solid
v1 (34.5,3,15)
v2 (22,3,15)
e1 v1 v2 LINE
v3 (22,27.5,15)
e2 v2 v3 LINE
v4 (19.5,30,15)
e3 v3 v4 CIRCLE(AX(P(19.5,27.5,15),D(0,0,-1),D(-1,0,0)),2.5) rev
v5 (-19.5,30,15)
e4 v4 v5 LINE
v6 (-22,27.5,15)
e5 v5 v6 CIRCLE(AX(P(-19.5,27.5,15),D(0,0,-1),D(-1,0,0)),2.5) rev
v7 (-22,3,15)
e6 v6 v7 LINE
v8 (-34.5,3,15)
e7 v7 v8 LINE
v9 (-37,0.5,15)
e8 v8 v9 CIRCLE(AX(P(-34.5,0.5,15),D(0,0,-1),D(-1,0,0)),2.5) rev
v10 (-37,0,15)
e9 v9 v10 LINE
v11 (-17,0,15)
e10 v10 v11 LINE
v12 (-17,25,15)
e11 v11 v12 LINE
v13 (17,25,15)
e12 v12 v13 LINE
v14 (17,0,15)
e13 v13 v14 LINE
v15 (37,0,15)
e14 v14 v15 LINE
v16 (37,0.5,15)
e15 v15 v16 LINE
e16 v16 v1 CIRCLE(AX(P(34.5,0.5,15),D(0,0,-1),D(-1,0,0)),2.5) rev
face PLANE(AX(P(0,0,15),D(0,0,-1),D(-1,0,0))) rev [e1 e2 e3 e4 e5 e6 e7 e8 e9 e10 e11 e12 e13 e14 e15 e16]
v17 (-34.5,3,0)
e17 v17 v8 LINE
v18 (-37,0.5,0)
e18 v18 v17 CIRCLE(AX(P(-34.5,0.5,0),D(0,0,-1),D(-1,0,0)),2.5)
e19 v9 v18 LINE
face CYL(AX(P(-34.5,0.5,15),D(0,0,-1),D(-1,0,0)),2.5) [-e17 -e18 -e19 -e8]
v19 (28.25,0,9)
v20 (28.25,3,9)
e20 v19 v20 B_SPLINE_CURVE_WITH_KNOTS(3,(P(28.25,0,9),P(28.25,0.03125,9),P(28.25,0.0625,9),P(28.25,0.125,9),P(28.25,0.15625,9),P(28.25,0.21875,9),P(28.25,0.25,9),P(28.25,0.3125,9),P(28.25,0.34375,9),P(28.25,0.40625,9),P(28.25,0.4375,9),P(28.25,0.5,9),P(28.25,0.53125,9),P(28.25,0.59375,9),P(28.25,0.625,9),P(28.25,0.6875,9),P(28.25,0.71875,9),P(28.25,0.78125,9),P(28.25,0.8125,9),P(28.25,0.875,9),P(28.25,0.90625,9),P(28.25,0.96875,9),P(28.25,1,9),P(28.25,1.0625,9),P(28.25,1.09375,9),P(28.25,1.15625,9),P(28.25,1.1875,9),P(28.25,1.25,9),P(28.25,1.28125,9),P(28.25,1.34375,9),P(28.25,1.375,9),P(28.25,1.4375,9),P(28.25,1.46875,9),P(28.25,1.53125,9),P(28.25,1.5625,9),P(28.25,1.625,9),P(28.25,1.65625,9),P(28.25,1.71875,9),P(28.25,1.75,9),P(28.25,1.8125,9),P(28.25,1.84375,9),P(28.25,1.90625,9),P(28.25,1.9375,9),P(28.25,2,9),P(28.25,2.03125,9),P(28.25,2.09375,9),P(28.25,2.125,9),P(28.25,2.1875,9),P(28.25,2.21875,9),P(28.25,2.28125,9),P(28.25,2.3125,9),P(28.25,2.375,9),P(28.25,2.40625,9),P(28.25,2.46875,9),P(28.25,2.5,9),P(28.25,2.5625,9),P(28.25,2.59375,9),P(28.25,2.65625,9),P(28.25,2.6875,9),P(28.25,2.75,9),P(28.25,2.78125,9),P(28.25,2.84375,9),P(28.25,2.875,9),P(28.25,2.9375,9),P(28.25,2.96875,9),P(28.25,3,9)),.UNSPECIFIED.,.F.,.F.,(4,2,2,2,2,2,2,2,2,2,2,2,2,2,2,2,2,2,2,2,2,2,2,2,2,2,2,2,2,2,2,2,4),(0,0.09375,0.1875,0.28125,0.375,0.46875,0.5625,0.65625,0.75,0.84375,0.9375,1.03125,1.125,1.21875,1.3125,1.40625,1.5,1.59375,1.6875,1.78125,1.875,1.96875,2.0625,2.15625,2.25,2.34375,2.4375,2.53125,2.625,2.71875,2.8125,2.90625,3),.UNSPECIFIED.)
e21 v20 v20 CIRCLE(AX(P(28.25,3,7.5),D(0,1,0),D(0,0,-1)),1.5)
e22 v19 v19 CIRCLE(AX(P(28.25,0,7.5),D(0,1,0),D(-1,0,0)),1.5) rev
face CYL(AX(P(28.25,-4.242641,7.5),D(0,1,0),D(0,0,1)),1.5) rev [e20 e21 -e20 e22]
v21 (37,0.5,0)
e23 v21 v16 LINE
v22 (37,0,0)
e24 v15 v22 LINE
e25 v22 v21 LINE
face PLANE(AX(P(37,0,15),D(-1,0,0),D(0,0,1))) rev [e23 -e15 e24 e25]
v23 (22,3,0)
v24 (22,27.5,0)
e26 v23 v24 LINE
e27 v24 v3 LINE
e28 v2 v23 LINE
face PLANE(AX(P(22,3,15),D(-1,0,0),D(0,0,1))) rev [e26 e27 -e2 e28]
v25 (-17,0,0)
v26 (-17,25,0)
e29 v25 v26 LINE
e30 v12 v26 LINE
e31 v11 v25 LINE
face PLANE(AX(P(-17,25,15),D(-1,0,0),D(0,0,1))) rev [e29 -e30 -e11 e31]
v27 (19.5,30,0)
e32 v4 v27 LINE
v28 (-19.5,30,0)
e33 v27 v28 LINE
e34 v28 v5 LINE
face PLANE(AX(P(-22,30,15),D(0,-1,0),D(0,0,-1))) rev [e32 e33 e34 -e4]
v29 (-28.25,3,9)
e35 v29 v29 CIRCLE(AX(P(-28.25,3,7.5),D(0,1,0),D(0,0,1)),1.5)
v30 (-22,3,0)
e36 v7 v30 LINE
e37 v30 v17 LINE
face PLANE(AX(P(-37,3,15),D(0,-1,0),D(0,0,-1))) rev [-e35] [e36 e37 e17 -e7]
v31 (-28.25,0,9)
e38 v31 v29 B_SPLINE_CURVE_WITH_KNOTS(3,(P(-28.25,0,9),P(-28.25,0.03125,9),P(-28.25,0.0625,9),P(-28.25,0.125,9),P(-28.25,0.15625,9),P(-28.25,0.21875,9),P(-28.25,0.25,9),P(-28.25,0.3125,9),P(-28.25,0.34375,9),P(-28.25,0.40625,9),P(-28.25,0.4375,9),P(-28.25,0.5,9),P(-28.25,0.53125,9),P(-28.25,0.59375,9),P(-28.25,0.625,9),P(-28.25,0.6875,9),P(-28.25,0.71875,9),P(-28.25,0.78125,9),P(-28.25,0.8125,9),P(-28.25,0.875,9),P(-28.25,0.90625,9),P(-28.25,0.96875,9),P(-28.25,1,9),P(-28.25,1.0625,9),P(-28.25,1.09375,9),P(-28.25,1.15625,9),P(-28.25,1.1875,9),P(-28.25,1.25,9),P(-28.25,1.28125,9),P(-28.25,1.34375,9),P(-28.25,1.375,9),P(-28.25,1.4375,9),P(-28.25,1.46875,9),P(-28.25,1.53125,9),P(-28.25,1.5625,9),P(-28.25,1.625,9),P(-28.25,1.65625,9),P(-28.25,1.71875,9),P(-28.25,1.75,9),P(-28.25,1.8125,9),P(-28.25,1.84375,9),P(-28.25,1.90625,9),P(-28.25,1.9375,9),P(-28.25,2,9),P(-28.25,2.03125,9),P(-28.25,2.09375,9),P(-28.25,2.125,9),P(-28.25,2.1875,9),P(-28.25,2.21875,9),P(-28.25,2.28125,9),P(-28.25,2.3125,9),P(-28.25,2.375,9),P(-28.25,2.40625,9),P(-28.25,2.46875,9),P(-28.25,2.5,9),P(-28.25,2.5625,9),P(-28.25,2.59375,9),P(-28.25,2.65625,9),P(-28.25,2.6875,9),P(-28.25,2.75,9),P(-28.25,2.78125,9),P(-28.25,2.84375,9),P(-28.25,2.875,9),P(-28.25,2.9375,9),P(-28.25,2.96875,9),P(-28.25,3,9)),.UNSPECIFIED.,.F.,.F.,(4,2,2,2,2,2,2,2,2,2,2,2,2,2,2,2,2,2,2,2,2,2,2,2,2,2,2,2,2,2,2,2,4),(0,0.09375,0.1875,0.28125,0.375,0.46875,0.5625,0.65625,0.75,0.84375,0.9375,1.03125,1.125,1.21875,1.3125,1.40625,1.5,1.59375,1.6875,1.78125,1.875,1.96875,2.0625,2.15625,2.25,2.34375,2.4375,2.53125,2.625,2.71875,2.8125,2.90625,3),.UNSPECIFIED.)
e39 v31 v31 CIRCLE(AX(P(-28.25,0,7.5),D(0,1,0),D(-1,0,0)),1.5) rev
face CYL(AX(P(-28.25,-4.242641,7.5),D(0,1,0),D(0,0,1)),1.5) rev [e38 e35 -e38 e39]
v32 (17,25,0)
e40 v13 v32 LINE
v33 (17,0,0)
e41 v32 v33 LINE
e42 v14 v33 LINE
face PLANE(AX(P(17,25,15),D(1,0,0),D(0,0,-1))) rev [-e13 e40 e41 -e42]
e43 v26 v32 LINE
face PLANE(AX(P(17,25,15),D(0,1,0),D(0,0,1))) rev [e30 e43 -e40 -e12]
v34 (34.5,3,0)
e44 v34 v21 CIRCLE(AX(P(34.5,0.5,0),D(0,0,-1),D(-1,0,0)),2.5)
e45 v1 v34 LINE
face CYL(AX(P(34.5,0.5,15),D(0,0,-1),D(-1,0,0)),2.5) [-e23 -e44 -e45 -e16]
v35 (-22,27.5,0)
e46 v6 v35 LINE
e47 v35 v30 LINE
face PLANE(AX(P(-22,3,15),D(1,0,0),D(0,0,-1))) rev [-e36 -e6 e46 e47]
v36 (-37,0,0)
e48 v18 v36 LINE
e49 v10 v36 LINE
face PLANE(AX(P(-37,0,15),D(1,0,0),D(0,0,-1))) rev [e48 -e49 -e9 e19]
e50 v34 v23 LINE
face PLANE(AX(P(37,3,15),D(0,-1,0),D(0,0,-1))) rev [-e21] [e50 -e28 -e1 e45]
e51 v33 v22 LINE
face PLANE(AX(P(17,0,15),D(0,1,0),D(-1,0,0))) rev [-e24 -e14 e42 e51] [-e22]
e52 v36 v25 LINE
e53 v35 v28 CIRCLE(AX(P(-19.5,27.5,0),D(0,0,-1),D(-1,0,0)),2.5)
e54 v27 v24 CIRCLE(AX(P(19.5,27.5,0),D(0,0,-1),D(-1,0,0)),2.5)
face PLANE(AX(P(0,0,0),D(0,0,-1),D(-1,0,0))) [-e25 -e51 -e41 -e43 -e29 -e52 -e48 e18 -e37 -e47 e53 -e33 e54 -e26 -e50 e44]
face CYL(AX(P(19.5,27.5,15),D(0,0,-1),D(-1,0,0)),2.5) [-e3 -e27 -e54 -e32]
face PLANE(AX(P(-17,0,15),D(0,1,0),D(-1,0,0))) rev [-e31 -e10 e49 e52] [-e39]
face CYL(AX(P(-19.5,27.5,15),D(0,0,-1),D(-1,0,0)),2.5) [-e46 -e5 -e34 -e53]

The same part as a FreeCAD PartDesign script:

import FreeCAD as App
import Part
import Sketcher

V = App.Vector
Q = App.Units.Quantity


def edges_at(feature, points):
    """Names of the edges that pass closest to the given points."""
    edges = feature.Shape.Edges
    near = lambda p: min(range(len(edges)), key=lambda i: edges[i].distToShape(Part.Vertex(*p))[0])
    return sorted({f"Edge{near(p) + 1}" for p in points})


def add_polygon(sketch, points):
    """Adds a closed chain of lines whose ends are joined by coincident constraints."""
    first, n = sketch.GeometryCount, len(points)
    for a, b in zip(points, points[1:] + points[:1]):
        sketch.addGeometry(Part.LineSegment(App.Vector(*a, 0), App.Vector(*b, 0)), False)
    for i in range(n):
        sketch.addConstraint(Sketcher.Constraint("Coincident", first + i, 2, first + (i + 1) % n, 1))

doc = App.newDocument("Part")
body = doc.addObject("PartDesign::Body", "Body")

# Sketch on XY plane
sketch1 = doc.addObject("Sketcher::SketchObject", "Sketch")
body.addObject(sketch1)
sketch1.AttachmentSupport = (doc.XY_Plane, [""])
sketch1.MapMode = "FlatFace"
add_polygon(sketch1, [(-17, 25), (17, 25), (17, 0), (37, 0), (37, 3), (22, 3), (22, 30), (-22, 30), (-22, 3), (-37, 3), (-37, 0), (-17, 0)])  # lines 0-11
sketch1.addConstraint([
    Sketcher.Constraint("Horizontal", 0),
    Sketcher.Constraint("Vertical", 1),
    Sketcher.Constraint("Horizontal", 2),
    Sketcher.Constraint("Vertical", 3),
    Sketcher.Constraint("Horizontal", 4),
    Sketcher.Constraint("Vertical", 5),
    Sketcher.Constraint("Horizontal", 6),
    Sketcher.Constraint("Vertical", 7),
    Sketcher.Constraint("Horizontal", 8),
    Sketcher.Constraint("Vertical", 9),
    Sketcher.Constraint("Horizontal", 10),
    Sketcher.Constraint("Vertical", 11),
    Sketcher.Constraint("Symmetric", 2, 2, 9, 2, -1, 1),
    Sketcher.Constraint("Symmetric", 4, 2, 7, 2, -2),
    Sketcher.Constraint("Symmetric", 1, 2, 10, 2, -2),
    Sketcher.Constraint("DistanceX", 0, 1, 0, 2, Q("34 mm")),
    Sketcher.Constraint("DistanceX", 2, 1, 2, 2, Q("20 mm")),
    Sketcher.Constraint("DistanceX", 4, 2, 4, 1, Q("15 mm")),
    Sketcher.Constraint("DistanceY", 1, 2, 1, 1, Q("25 mm")),
    Sketcher.Constraint("DistanceY", 3, 1, 3, 2, Q("3 mm")),
    Sketcher.Constraint("DistanceY", 5, 1, 5, 2, Q("27 mm")),
])
pad1 = doc.addObject("PartDesign::Pad", "Pad")
body.addObject(pad1)
pad1.Profile = sketch1
pad1.Length = 15
doc.recompute()

fillet = doc.addObject("PartDesign::Fillet", "Fillet")
body.addObject(fillet)
fillet.Base = (pad1, edges_at(pad1, [
    (-37, 3, 7.5),
    (-22, 30, 7.5),
    (22, 30, 7.5),
    (37, 3, 7.5),
]))
fillet.Radius = 2.5

# Sketch on XZ plane
sketch2 = doc.addObject("Sketcher::SketchObject", "Sketch001")
body.addObject(sketch2)
sketch2.AttachmentSupport = (doc.XZ_Plane, [""])
sketch2.MapMode = "FlatFace"
sketch2.AttachmentOffset = App.Placement(V(0, 0, -3), App.Rotation())
sketch2.addGeometry([
    Part.Circle(V(-28.2, 7.5, 0), V(0, 0, 1), 1.5),
    Part.Circle(V(28.2, 7.5, 0), V(0, 0, 1), 1.5),
], False)
sketch2.addConstraint([
    Sketcher.Constraint("Equal", 0, 1),
    Sketcher.Constraint("Symmetric", 0, 3, 1, 3, -2),
    Sketcher.Constraint("Diameter", 0, Q("3 mm")),
    Sketcher.Constraint("DistanceY", -1, 1, 0, 3, Q("7.5 mm")),
    Sketcher.Constraint("DistanceX", 0, 3, 1, 3, Q("56.5 mm")),
])
pocket1 = doc.addObject("PartDesign::Pocket", "Pocket")
body.addObject(pocket1)
pocket1.Profile = sketch2
pocket1.Length = 3
pocket1.Reversed = True

doc.recompute()
